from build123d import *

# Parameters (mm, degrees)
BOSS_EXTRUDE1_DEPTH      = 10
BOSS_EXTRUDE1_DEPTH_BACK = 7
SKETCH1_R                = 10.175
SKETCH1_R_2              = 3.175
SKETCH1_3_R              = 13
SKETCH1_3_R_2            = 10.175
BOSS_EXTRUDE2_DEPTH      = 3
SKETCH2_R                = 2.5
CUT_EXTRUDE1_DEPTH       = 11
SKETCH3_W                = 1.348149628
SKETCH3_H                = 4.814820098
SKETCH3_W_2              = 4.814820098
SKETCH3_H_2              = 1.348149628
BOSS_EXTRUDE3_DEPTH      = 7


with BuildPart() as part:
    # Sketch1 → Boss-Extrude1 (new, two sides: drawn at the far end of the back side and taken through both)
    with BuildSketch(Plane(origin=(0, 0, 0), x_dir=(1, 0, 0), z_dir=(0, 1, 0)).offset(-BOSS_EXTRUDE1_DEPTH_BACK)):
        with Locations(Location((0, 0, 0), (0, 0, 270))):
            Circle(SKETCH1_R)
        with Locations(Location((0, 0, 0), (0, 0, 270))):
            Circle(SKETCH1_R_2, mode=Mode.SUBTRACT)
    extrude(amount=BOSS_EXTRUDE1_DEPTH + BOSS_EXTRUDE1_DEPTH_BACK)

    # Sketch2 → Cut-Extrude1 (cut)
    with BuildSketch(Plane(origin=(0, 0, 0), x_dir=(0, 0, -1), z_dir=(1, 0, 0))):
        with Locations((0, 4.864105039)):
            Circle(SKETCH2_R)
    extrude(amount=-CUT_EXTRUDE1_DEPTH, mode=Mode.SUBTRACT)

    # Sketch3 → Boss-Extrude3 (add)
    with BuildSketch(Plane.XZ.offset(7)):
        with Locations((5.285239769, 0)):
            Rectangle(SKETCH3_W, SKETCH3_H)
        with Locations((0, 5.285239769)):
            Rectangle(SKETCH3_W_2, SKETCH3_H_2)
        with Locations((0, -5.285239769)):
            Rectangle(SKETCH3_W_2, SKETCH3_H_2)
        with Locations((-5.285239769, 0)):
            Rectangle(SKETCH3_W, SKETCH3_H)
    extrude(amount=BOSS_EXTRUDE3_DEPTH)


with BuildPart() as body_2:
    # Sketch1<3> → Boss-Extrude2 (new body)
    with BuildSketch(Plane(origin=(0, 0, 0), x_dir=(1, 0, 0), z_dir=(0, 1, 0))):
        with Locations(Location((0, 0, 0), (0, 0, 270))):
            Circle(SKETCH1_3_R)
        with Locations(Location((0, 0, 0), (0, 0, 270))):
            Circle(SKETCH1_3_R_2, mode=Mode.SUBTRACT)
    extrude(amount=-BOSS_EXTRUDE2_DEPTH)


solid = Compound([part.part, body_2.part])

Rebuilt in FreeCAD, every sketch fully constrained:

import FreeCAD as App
import Part
import Sketcher

V = App.Vector


def add_polygon(sketch, points):
    """Adds a closed chain of lines whose ends are joined by coincident constraints."""
    first, n = sketch.GeometryCount, len(points)
    for a, b in zip(points, points[1:] + points[:1]):
        sketch.addGeometry(Part.LineSegment(App.Vector(*a, 0), App.Vector(*b, 0)), False)
    for i in range(n):
        sketch.addConstraint(Sketcher.Constraint("Coincident", first + i, 2, first + (i + 1) % n, 1))

doc = App.newDocument("Part")
body = doc.addObject("PartDesign::Body", "Body")

sketch1 = body.newObject("Sketcher::SketchObject", "Sketch")
sketch1.AttachmentSupport = (doc.getObject("XZ_Plane"), [""])
sketch1.MapMode = "FlatFace"
sketch1.addGeometry(Part.Circle(V(0, 0, 0), V(0, 0, 1), 10.2), False)
sketch1.addGeometry(Part.Circle(V(0, 0, 0), V(0, 0, 1), 3.2), False)
sketch1.addConstraint(Sketcher.Constraint("Coincident", 0, 3, -1, 1))
sketch1.addConstraint(Sketcher.Constraint("Coincident", 1, 3, -1, 1))
sketch1.addConstraint(Sketcher.Constraint("Diameter", 0, 20.35))
sketch1.addConstraint(Sketcher.Constraint("Diameter", 1, 6.35))
pad1 = body.newObject("PartDesign::Pad", "Pad")
pad1.Profile = sketch1
pad1.Type = "TwoLengths"
pad1.Length = 10
pad1.Length2 = 7
pad1.Reversed = True

sketch2 = body.newObject("Sketcher::SketchObject", "Sketch001")
sketch2.AttachmentSupport = (doc.getObject("YZ_Plane"), [""])
sketch2.MapMode = "FlatFace"
sketch2.addGeometry(Part.Circle(V(4.9, 0, 0), V(0, 0, 1), 2.5), False)
sketch2.addConstraint(Sketcher.Constraint("PointOnObject", 0, 3, -1))
sketch2.addConstraint(Sketcher.Constraint("Diameter", 0, 5.0))
sketch2.addConstraint(Sketcher.Constraint("DistanceX", -1, 1, 0, 3, 4.864105))
pocket1 = body.newObject("PartDesign::Pocket", "Pocket")
pocket1.Profile = sketch2
pocket1.Length = 11

sketch3 = body.newObject("Sketcher::SketchObject", "Sketch002")
sketch3.AttachmentSupport = (doc.getObject("XZ_Plane"), [""])
sketch3.MapMode = "FlatFace"
sketch3.AttachmentOffset = App.Placement(V(0, 0, 7), App.Rotation())
add_polygon(sketch3, [(4.6, 2.4), (4.6, -2.4), (6, -2.4), (6, 2.4)])
add_polygon(sketch3, [(-2.4, 6), (-2.4, 4.6), (2.4, 4.6), (2.4, 6)])
add_polygon(sketch3, [(-2.4, -4.6), (-2.4, -6), (2.4, -6), (2.4, -4.6)])
add_polygon(sketch3, [(-6, 2.4), (-6, -2.4), (-4.6, -2.4), (-4.6, 2.4)])
sketch3.addConstraint(Sketcher.Constraint("Vertical", 0))
sketch3.addConstraint(Sketcher.Constraint("Horizontal", 1))
sketch3.addConstraint(Sketcher.Constraint("Vertical", 2))
sketch3.addConstraint(Sketcher.Constraint("Horizontal", 3))
sketch3.addConstraint(Sketcher.Constraint("Vertical", 4))
sketch3.addConstraint(Sketcher.Constraint("Horizontal", 5))
sketch3.addConstraint(Sketcher.Constraint("Vertical", 6))
sketch3.addConstraint(Sketcher.Constraint("Horizontal", 7))
sketch3.addConstraint(Sketcher.Constraint("Vertical", 8))
sketch3.addConstraint(Sketcher.Constraint("Horizontal", 9))
sketch3.addConstraint(Sketcher.Constraint("Vertical", 10))
sketch3.addConstraint(Sketcher.Constraint("Horizontal", 11))
sketch3.addConstraint(Sketcher.Constraint("Vertical", 12))
sketch3.addConstraint(Sketcher.Constraint("Horizontal", 13))
sketch3.addConstraint(Sketcher.Constraint("Vertical", 14))
sketch3.addConstraint(Sketcher.Constraint("Horizontal", 15))
sketch3.addConstraint(Sketcher.Constraint("Symmetric", 6, 2, 8, 2, -1, 1))
sketch3.addConstraint(Sketcher.Constraint("Symmetric", 4, 2, 10, 2, -1, 1))
sketch3.addConstraint(Sketcher.Constraint("Symmetric", 2, 2, 12, 2, -1, 1))
sketch3.addConstraint(Sketcher.Constraint("Symmetric", 0, 2, 14, 2, -1, 1))
sketch3.addConstraint(Sketcher.Constraint("Horizontal", 1, 2, 12, 2))
sketch3.addConstraint(Sketcher.Constraint("Vertical", 7, 2, 8, 2))
sketch3.addConstraint(Sketcher.Constraint("Equal", 11, 0))
sketch3.addConstraint(Sketcher.Constraint("Equal", 15, 4))
sketch3.addConstraint(Sketcher.Constraint("DistanceX", 1, 1, 1, 2, 1.34815))
sketch3.addConstraint(Sketcher.Constraint("DistanceX", 5, 1, 5, 2, 4.81482))
sketch3.addConstraint(Sketcher.Constraint("DistanceY", 8, 2, 4, 2, 10.57048))
sketch3.addConstraint(Sketcher.Constraint("DistanceX", -1, 1, 0, 2, 4.611165))
pad2 = body.newObject("PartDesign::Pad", "Pad001")
pad2.Profile = sketch3
pad2.Length = 7
body2 = doc.addObject("PartDesign::Body", "Body001")

sketch4 = body2.newObject("Sketcher::SketchObject", "Sketch003")
sketch4.AttachmentSupport = (doc.getObject("XZ_Plane001"), [""])
sketch4.MapMode = "FlatFace"
sketch4.addGeometry(Part.Circle(V(0, 0, 0), V(0, 0, 1), 13), False)
sketch4.addGeometry(Part.Circle(V(0, 0, 0), V(0, 0, 1), 10), False)
sketch4.addConstraint(Sketcher.Constraint("Coincident", 0, 3, -1, 1))
sketch4.addConstraint(Sketcher.Constraint("Coincident", 1, 3, -1, 1))
sketch4.addConstraint(Sketcher.Constraint("Diameter", 0, 26.0))
sketch4.addConstraint(Sketcher.Constraint("Diameter", 1, 20.35))
pad3 = body2.newObject("PartDesign::Pad", "Pad002")
pad3.Profile = sketch4
pad3.Length = 3

doc.recompute()
